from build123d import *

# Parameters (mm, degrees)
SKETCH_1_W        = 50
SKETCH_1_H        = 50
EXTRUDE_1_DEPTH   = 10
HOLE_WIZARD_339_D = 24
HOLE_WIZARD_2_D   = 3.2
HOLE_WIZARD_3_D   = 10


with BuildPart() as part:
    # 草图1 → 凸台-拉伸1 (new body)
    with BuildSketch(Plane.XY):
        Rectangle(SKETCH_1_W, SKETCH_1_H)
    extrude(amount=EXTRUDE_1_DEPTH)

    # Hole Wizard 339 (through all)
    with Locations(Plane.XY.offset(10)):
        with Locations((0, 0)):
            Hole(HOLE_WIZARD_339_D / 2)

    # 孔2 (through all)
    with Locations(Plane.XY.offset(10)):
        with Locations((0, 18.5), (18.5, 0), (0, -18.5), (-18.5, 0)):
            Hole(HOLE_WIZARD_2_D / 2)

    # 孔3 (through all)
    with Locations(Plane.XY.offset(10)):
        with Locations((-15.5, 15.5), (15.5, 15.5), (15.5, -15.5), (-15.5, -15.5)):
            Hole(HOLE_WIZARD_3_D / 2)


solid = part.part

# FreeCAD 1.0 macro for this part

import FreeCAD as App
import Part
import Sketcher
from FreeCAD import Vector
Q = App.Units.Quantity


def add_polygon(sketch, points):
    """Adds a closed chain of lines whose ends are joined by coincident constraints."""
    first, n = sketch.GeometryCount, len(points)
    for a, b in zip(points, points[1:] + points[:1]):
        sketch.addGeometry(Part.LineSegment(App.Vector(*a, 0), App.Vector(*b, 0)), False)
    for i in range(n):
        sketch.addConstraint(Sketcher.Constraint("Coincident", first + i, 2, first + (i + 1) % n, 1))

doc = App.newDocument("Part")
body = doc.addObject("PartDesign::Body", "Body")

sketch1 = doc.addObject("Sketcher::SketchObject", "Sketch")
body.addObject(sketch1)
sketch1.AttachmentSupport = (doc.XY_Plane, [""])
sketch1.MapMode = "FlatFace"
add_polygon(sketch1, [(-25, 25), (-25, -25), (25, -25), (25, 25)])
sketch1.addConstraint([
    Sketcher.Constraint("Vertical", 0),
    Sketcher.Constraint("Horizontal", 1),
    Sketcher.Constraint("Vertical", 2),
    Sketcher.Constraint("Horizontal", 3),
    Sketcher.Constraint("Symmetric", 0, 2, 2, 2, -1, 1),
    Sketcher.Constraint("Equal", 3, 0),
    Sketcher.Constraint("DistanceX", 1, 1, 1, 2, Q("50 mm")),
])
pad1 = doc.addObject("PartDesign::Pad", "Pad")
body.addObject(pad1)
pad1.Profile = sketch1
pad1.Length = 10

sketch2 = doc.addObject("Sketcher::SketchObject", "Sketch001")
body.addObject(sketch2)
sketch2.AttachmentSupport = (doc.XY_Plane, [""])
sketch2.MapMode = "FlatFace"
sketch2.AttachmentOffset = App.Placement(Vector(0, 0, 10), App.Rotation())
sketch2.addGeometry(Part.Circle(Vector(0, 0, 0), Vector(0, 0, 1), 12), False)
sketch2.addConstraint([
    Sketcher.Constraint("Coincident", 0, 3, -1, 1),
    Sketcher.Constraint("Diameter", 0, Q("24 mm")),
])
doc.recompute()
hole = doc.addObject("PartDesign::Hole", "Hole")
body.addObject(hole)
hole.Profile = sketch2
hole.ThreadType = "None"
hole.Diameter = 24
hole.DepthType = "ThroughAll"

sketch3 = doc.addObject("Sketcher::SketchObject", "Sketch002")
body.addObject(sketch3)
sketch3.AttachmentSupport = (doc.XY_Plane, [""])
sketch3.MapMode = "FlatFace"
sketch3.AttachmentOffset = App.Placement(Vector(0, 0, 10), App.Rotation())
sketch3.addGeometry([
    Part.Circle(Vector(0, 18.5, 0), Vector(0, 0, 1), 1.6),
    Part.Circle(Vector(18.5, 0, 0), Vector(0, 0, 1), 1.6),
    Part.Circle(Vector(0, -18.5, 0), Vector(0, 0, 1), 1.6),
    Part.Circle(Vector(-18.5, 0, 0), Vector(0, 0, 1), 1.6),
], False)
sketch3.addConstraint([
    Sketcher.Constraint("Equal", 0, 1),
    Sketcher.Constraint("Equal", 1, 2),
    Sketcher.Constraint("Equal", 2, 3),
    Sketcher.Constraint("Symmetric", 0, 3, 2, 3, -1, 1),
    Sketcher.Constraint("Symmetric", 1, 3, 3, 3, -1, 1),
    Sketcher.Constraint("PointOnObject", 0, 3, -2),
    Sketcher.Constraint("PointOnObject", 1, 3, -1),
    Sketcher.Constraint("Diameter", 0, Q("3.2 mm")),
    Sketcher.Constraint("DistanceY", 2, 3, 0, 3, Q("37 mm")),
    Sketcher.Constraint("DistanceX", 3, 3, 1, 3, Q("37 mm")),
])
doc.recompute()
hole2 = doc.addObject("PartDesign::Hole", "Hole001")
body.addObject(hole2)
hole2.Profile = sketch3
hole2.ThreadType = "None"
hole2.Diameter = 3.2
hole2.DepthType = "ThroughAll"

sketch4 = doc.addObject("Sketcher::SketchObject", "Sketch003")
body.addObject(sketch4)
sketch4.AttachmentSupport = (doc.XY_Plane, [""])
sketch4.MapMode = "FlatFace"
sketch4.AttachmentOffset = App.Placement(Vector(0, 0, 10), App.Rotation())
sketch4.addGeometry([
    Part.Circle(Vector(-16, 16, 0), Vector(0, 0, 1), 5),
    Part.Circle(Vector(16, 16, 0), Vector(0, 0, 1), 5),
    Part.Circle(Vector(16, -16, 0), Vector(0, 0, 1), 5),
    Part.Circle(Vector(-16, -16, 0), Vector(0, 0, 1), 5),
], False)
sketch4.addConstraint([
    Sketcher.Constraint("Equal", 0, 1),
    Sketcher.Constraint("Equal", 1, 2),
    Sketcher.Constraint("Equal", 2, 3),
    Sketcher.Constraint("Symmetric", 0, 3, 2, 3, -1, 1),
    Sketcher.Constraint("Symmetric", 1, 3, 3, 3, -1, 1),
    Sketcher.Constraint("Symmetric", 0, 3, 1, 3, -2),
    Sketcher.Constraint("Diameter", 0, Q("10 mm")),
    Sketcher.Constraint("DistanceX", 0, 3, 1, 3, Q("31 mm")),
    Sketcher.Constraint("DistanceY", 2, 3, 1, 3, Q("31 mm")),
])
doc.recompute()
hole3 = doc.addObject("PartDesign::Hole", "Hole002")
body.addObject(hole3)
hole3.Profile = sketch4
hole3.ThreadType = "None"
hole3.Diameter = 10
hole3.DepthType = "ThroughAll"

doc.recompute()
